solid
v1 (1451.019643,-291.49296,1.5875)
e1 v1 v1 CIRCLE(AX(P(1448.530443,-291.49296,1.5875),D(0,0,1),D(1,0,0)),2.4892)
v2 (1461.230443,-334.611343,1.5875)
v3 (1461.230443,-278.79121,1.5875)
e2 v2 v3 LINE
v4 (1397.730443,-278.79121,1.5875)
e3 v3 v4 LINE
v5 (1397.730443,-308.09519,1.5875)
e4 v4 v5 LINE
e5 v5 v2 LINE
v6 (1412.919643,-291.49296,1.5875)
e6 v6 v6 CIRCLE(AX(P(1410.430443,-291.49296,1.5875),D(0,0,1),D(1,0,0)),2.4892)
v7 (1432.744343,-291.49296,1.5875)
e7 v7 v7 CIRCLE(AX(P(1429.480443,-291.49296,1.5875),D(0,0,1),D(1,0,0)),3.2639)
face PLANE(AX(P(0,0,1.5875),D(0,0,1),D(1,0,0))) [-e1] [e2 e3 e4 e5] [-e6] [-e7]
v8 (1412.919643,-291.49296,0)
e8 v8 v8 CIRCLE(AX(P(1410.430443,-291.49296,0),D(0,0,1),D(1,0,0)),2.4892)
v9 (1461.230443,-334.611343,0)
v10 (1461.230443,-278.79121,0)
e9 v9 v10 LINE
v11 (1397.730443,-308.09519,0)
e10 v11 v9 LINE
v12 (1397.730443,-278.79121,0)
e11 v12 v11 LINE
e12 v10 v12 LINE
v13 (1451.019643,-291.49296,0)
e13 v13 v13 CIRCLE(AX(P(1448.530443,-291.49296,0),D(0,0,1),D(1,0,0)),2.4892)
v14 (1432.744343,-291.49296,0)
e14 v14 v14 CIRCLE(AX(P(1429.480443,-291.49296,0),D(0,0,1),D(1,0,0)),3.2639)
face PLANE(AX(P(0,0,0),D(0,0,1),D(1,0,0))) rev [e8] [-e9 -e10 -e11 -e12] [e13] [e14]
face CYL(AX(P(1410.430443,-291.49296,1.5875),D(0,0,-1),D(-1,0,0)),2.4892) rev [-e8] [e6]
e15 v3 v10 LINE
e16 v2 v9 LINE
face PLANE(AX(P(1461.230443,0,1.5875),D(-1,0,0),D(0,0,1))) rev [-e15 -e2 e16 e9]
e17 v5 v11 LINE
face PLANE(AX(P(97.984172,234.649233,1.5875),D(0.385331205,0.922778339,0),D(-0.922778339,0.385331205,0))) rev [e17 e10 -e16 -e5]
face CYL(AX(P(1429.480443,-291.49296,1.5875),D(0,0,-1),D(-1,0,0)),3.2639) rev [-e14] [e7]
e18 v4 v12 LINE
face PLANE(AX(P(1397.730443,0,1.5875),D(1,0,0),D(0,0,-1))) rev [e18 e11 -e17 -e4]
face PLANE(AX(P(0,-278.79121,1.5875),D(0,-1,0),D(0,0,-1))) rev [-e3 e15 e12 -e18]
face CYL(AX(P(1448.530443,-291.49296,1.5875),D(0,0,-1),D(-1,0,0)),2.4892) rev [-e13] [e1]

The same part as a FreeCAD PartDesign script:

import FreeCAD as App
import Part
import Sketcher
Q = App.Units.Quantity

doc = App.newDocument("Part")
body = doc.addObject("PartDesign::Body", "Body")

# Sketch on XY plane
sketch1 = body.newObject("Sketcher::SketchObject", "Sketch")
sketch1.AttachmentSupport = (doc.getObject("XY_Plane"), [""])
sketch1.MapMode = "FlatFace"
sketch1.addGeometry([
    Part.LineSegment(App.Vector(1461.2, -334.6, 0), App.Vector(1461.2, -278.8, 0)),  # 0
    Part.LineSegment(App.Vector(1461.2, -278.8, 0), App.Vector(1397.7, -278.8, 0)),  # 1
    Part.LineSegment(App.Vector(1397.7, -278.8, 0), App.Vector(1397.7, -308.1, 0)),  # 2
    Part.LineSegment(App.Vector(1397.7, -308.1, 0), App.Vector(1461.2, -334.6, 0)),  # 3
    Part.Circle(App.Vector(1410.4, -291.5, 0), App.Vector(0, 0, 1), 2.5),  # 4
    Part.Circle(App.Vector(1429.5, -291.5, 0), App.Vector(0, 0, 1), 3.3),  # 5
    Part.Circle(App.Vector(1448.5, -291.5, 0), App.Vector(0, 0, 1), 2.5),  # 6
], False)
sketch1.addConstraint([
    Sketcher.Constraint("Coincident", 0, 2, 1, 1),
    Sketcher.Constraint("Coincident", 1, 2, 2, 1),
    Sketcher.Constraint("Coincident", 2, 2, 3, 1),
    Sketcher.Constraint("Coincident", 3, 2, 0, 1),
    Sketcher.Constraint("Vertical", 0),
    Sketcher.Constraint("Horizontal", 1),
    Sketcher.Constraint("Vertical", 2),
    Sketcher.Constraint("Equal", 4, 6),
    Sketcher.Constraint("Horizontal", 4, 3, 5, 3),
    Sketcher.Constraint("Horizontal", 5, 3, 6, 3),
    Sketcher.Constraint("Diameter", 4, Q("0.196 in")),
    Sketcher.Constraint("Diameter", 5, Q("0.257 in")),
    Sketcher.Constraint("DistanceX", 1, 2, 1, 1, Q("2.5 in")),
    Sketcher.Constraint("DistanceX", 4, 3, 0, 2, Q("2 in")),
    Sketcher.Constraint("DistanceX", 1, 2, 6, 3, Q("2 in")),
    Sketcher.Constraint("DistanceX", 4, 3, 5, 3, Q("0.75 in")),
    Sketcher.Constraint("DistanceY", 2, 2, 2, 1, Q("1.1537 in")),
    Sketcher.Constraint("DistanceY", 0, 1, 0, 2, Q("55.820133 mm")),
    Sketcher.Constraint("DistanceY", 4, 3, -1, 1, Q("291.49296 mm")),
    Sketcher.Constraint("DistanceY", 0, 2, -1, 1, Q("278.79121 mm")),
    Sketcher.Constraint("DistanceX", -1, 1, 4, 3, Q("1410.430443 mm")),
])
pad1 = body.newObject("PartDesign::Pad", "Pad")
pad1.Profile = sketch1
pad1.Length = Q("0.0625 in")

doc.recompute()
